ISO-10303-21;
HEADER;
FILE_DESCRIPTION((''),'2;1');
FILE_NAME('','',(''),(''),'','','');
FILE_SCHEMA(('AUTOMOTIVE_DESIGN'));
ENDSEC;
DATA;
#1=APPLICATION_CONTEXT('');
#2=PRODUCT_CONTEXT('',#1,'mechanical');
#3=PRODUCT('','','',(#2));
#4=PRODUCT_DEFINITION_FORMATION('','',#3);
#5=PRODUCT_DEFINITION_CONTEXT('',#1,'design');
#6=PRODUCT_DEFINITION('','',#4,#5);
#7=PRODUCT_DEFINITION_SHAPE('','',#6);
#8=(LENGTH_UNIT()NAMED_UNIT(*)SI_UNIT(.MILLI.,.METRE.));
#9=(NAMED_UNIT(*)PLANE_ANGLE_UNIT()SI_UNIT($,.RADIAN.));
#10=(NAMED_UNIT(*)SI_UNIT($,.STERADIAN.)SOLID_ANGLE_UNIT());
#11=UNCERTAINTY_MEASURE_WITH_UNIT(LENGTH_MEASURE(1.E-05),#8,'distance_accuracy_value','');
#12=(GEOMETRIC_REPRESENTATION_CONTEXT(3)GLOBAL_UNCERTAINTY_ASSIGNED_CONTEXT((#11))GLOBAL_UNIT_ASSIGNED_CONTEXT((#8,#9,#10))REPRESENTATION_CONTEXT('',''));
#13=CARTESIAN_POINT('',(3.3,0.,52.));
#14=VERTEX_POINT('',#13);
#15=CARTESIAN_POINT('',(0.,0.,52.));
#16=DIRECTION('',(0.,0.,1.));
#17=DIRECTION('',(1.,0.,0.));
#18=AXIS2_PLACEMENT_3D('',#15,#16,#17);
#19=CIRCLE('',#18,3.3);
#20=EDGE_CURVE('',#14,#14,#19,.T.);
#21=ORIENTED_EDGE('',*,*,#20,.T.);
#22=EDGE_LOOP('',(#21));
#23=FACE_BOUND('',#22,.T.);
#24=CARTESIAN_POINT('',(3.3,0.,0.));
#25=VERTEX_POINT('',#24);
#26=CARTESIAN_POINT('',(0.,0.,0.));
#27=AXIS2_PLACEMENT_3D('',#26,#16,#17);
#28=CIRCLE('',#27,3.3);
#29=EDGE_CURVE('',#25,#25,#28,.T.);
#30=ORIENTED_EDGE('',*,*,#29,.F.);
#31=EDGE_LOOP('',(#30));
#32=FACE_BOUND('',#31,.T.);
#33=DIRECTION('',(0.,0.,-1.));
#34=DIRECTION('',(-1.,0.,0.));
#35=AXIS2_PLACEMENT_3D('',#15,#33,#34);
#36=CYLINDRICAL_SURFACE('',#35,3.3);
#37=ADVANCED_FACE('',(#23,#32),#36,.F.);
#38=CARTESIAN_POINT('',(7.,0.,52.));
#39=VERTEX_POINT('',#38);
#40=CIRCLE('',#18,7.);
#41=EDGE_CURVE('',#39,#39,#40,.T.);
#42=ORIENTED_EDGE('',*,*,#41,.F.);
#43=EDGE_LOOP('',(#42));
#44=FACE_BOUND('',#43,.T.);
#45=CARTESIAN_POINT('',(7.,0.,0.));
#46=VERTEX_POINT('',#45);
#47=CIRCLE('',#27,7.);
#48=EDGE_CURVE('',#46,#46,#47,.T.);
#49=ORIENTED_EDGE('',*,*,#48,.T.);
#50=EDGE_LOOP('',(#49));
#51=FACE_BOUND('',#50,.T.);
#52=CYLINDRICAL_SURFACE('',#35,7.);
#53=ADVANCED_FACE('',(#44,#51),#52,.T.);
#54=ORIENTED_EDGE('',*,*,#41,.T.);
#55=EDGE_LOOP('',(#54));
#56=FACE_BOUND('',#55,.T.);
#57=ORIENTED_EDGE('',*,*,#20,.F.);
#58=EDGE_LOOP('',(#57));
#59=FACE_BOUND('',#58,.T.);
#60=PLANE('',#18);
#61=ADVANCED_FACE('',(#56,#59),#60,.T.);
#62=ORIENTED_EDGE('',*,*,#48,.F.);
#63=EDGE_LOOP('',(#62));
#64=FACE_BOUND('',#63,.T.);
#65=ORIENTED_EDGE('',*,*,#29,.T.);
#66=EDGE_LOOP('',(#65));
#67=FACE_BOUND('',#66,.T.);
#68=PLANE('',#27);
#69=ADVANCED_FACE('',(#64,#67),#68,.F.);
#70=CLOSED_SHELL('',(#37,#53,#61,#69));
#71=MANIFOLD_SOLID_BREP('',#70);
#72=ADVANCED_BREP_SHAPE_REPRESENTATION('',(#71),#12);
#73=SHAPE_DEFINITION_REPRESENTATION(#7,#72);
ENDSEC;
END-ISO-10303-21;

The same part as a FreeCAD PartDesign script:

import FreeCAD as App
import Part
import Sketcher
from FreeCAD import Vector
Q = App.Units.Quantity

doc = App.newDocument("Part")
body = doc.addObject("PartDesign::Body", "Body")

sketch1 = body.newObject("Sketcher::SketchObject", "Sketch")
sketch1.AttachmentSupport = (doc.getObject("XY_Plane"), [""])
sketch1.MapMode = "FlatFace"
sketch1.addGeometry(Part.Circle(Vector(0, 0, 0), Vector(0, 0, 1), 7), False)
sketch1.addGeometry(Part.Circle(Vector(0, 0, 0), Vector(0, 0, 1), 3.3), False)
sketch1.addConstraint(Sketcher.Constraint("Coincident", 0, 3, -1, 1))
sketch1.addConstraint(Sketcher.Constraint("Coincident", 1, 3, -1, 1))
sketch1.addConstraint(Sketcher.Constraint("Diameter", 0, Q("14 mm")))
sketch1.addConstraint(Sketcher.Constraint("Diameter", 1, Q("6.6 mm")))
pad1 = body.newObject("PartDesign::Pad", "Pad")
pad1.Profile = sketch1
pad1.Length = 52

doc.recompute()
